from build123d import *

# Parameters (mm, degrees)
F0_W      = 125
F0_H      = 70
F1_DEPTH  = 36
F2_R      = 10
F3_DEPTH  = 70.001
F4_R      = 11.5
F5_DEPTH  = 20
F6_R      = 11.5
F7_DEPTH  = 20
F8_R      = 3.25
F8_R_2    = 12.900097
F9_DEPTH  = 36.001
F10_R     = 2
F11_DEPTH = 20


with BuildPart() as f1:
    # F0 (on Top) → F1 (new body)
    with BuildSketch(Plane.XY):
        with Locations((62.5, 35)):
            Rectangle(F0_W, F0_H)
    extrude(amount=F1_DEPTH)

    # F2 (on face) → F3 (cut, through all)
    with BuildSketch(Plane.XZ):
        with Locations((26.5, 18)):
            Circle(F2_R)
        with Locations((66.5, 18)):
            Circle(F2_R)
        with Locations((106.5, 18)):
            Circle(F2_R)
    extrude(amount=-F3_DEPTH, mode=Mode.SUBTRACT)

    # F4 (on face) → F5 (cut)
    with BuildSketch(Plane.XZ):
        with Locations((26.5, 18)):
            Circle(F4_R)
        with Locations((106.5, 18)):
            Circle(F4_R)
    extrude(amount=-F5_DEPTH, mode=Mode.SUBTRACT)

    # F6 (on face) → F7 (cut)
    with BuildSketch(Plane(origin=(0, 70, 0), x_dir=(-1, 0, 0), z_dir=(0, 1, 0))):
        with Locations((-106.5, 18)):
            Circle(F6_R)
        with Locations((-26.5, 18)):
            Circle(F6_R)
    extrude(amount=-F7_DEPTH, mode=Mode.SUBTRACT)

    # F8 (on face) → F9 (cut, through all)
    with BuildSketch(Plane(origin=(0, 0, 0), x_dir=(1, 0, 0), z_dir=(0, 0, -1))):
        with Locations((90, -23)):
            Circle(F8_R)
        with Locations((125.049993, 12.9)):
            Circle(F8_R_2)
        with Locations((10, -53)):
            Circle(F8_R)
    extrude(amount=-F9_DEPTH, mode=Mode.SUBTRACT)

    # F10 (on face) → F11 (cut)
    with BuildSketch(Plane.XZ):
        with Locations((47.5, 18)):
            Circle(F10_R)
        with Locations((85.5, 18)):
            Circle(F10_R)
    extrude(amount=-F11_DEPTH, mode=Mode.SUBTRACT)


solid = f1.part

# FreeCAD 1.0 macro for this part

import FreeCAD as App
import Part
import Sketcher
Q = App.Units.Quantity

doc = App.newDocument("Part")
body = doc.addObject("PartDesign::Body", "Body")

sketch1 = body.newObject("Sketcher::SketchObject", "Sketch")
sketch1.AttachmentSupport = (doc.getObject("XY_Plane"), [""])
sketch1.MapMode = "FlatFace"
sketch1.addGeometry([
    Part.LineSegment(App.Vector(0, 70, 0), App.Vector(0, 0, 0)),
    Part.LineSegment(App.Vector(0, 0, 0), App.Vector(125, 0, 0)),
    Part.LineSegment(App.Vector(125, 0, 0), App.Vector(125, 70, 0)),
    Part.LineSegment(App.Vector(125, 70, 0), App.Vector(0, 70, 0)),
], False)
sketch1.addConstraint([
    Sketcher.Constraint("Coincident", 0, 2, 1, 1),
    Sketcher.Constraint("Coincident", 1, 2, 2, 1),
    Sketcher.Constraint("Coincident", 2, 2, 3, 1),
    Sketcher.Constraint("Coincident", 3, 2, 0, 1),
    Sketcher.Constraint("Vertical", 0),
    Sketcher.Constraint("Horizontal", 1),
    Sketcher.Constraint("Vertical", 2),
    Sketcher.Constraint("Horizontal", 3),
    Sketcher.Constraint("Coincident", 0, 2, -1, 1),
    Sketcher.Constraint("DistanceX", 1, 1, 1, 2, Q("125 mm")),
    Sketcher.Constraint("DistanceY", 0, 2, 0, 1, Q("70 mm")),
])
pad1 = body.newObject("PartDesign::Pad", "Pad")
pad1.Profile = sketch1
pad1.Length = 36

sketch2 = body.newObject("Sketcher::SketchObject", "Sketch001")
sketch2.AttachmentSupport = (doc.getObject("XZ_Plane"), [""])
sketch2.MapMode = "FlatFace"
sketch2.addGeometry([
    Part.Circle(App.Vector(26, 18, 0), App.Vector(0, 0, 1), 10),
    Part.Circle(App.Vector(66, 18, 0), App.Vector(0, 0, 1), 10),
    Part.Circle(App.Vector(106, 18, 0), App.Vector(0, 0, 1), 10),
], False)
sketch2.addConstraint([
    Sketcher.Constraint("Equal", 0, 1),
    Sketcher.Constraint("Equal", 1, 2),
    Sketcher.Constraint("Horizontal", 0, 3, 1, 3),
    Sketcher.Constraint("Horizontal", 1, 3, 2, 3),
    Sketcher.Constraint("Diameter", 0, Q("20 mm")),
    Sketcher.Constraint("DistanceY", -1, 1, 0, 3, Q("18 mm")),
    Sketcher.Constraint("DistanceX", 0, 3, 1, 3, Q("40 mm")),
    Sketcher.Constraint("DistanceX", 1, 3, 2, 3, Q("40 mm")),
    Sketcher.Constraint("DistanceX", -1, 1, 0, 3, Q("26.5 mm")),
])
pocket1 = body.newObject("PartDesign::Pocket", "Pocket")
pocket1.Profile = sketch2
pocket1.Type = "ThroughAll"

sketch3 = body.newObject("Sketcher::SketchObject", "Sketch002")
sketch3.AttachmentSupport = (doc.getObject("XZ_Plane"), [""])
sketch3.MapMode = "FlatFace"
sketch3.addGeometry([
    Part.Circle(App.Vector(26, 18, 0), App.Vector(0, 0, 1), 12),
    Part.Circle(App.Vector(106, 18, 0), App.Vector(0, 0, 1), 12),
], False)
sketch3.addConstraint([
    Sketcher.Constraint("Equal", 0, 1),
    Sketcher.Constraint("Horizontal", 0, 3, 1, 3),
    Sketcher.Constraint("Diameter", 0, Q("23 mm")),
    Sketcher.Constraint("DistanceY", -1, 1, 0, 3, Q("18 mm")),
    Sketcher.Constraint("DistanceX", 0, 3, 1, 3, Q("80 mm")),
    Sketcher.Constraint("DistanceX", -1, 1, 0, 3, Q("26.5 mm")),
])
pocket2 = body.newObject("PartDesign::Pocket", "Pocket001")
pocket2.Profile = sketch3
pocket2.Length = 20

sketch4 = body.newObject("Sketcher::SketchObject", "Sketch003")
sketch4.AttachmentSupport = (doc.getObject("XZ_Plane"), [""])
sketch4.MapMode = "FlatFace"
sketch4.AttachmentOffset = App.Placement(App.Vector(0, 0, -70), App.Rotation())
sketch4.addGeometry([
    Part.Circle(App.Vector(106, 18, 0), App.Vector(0, 0, 1), 12),
    Part.Circle(App.Vector(26, 18, 0), App.Vector(0, 0, 1), 12),
], False)
sketch4.addConstraint([
    Sketcher.Constraint("Equal", 0, 1),
    Sketcher.Constraint("Horizontal", 0, 3, 1, 3),
    Sketcher.Constraint("Diameter", 0, Q("23 mm")),
    Sketcher.Constraint("DistanceY", -1, 1, 0, 3, Q("18 mm")),
    Sketcher.Constraint("DistanceX", 1, 3, 0, 3, Q("80 mm")),
    Sketcher.Constraint("DistanceX", -1, 1, 0, 3, Q("106.5 mm")),
])
pocket3 = body.newObject("PartDesign::Pocket", "Pocket002")
pocket3.Profile = sketch4
pocket3.Length = 20
pocket3.Reversed = True

sketch5 = body.newObject("Sketcher::SketchObject", "Sketch004")
sketch5.AttachmentSupport = (doc.getObject("XY_Plane"), [""])
sketch5.MapMode = "FlatFace"
sketch5.addGeometry([
    Part.Circle(App.Vector(90, 23, 0), App.Vector(0, 0, 1), 3.2),
    Part.Circle(App.Vector(125, -12.9, 0), App.Vector(0, 0, 1), 12.9),
    Part.Circle(App.Vector(10, 53, 0), App.Vector(0, 0, 1), 3.2),
], False)
sketch5.addConstraint([
    Sketcher.Constraint("Equal", 0, 2),
    Sketcher.Constraint("Diameter", 0, Q("6.5 mm")),
    Sketcher.Constraint("DistanceX", -1, 1, 0, 3, Q("90 mm")),
    Sketcher.Constraint("DistanceY", -1, 1, 0, 3, Q("23 mm")),
    Sketcher.Constraint("DistanceX", -1, 1, 2, 3, Q("10 mm")),
    Sketcher.Constraint("DistanceY", -1, 1, 2, 3, Q("53 mm")),
    Sketcher.Constraint("DistanceY", 1, 3, -1, 1, Q("12.9 mm")),
    Sketcher.Constraint("Diameter", 1, Q("25.800194 mm")),
    Sketcher.Constraint("DistanceX", -1, 1, 1, 3, Q("125.049993 mm")),
])
pocket4 = body.newObject("PartDesign::Pocket", "Pocket003")
pocket4.Profile = sketch5
pocket4.Type = "ThroughAll"
pocket4.Reversed = True

sketch6 = body.newObject("Sketcher::SketchObject", "Sketch005")
sketch6.AttachmentSupport = (doc.getObject("XZ_Plane"), [""])
sketch6.MapMode = "FlatFace"
sketch6.addGeometry([
    Part.Circle(App.Vector(47.5, 18, 0), App.Vector(0, 0, 1), 2),
    Part.Circle(App.Vector(85.5, 18, 0), App.Vector(0, 0, 1), 2),
], False)
sketch6.addConstraint([
    Sketcher.Constraint("Equal", 0, 1),
    Sketcher.Constraint("Horizontal", 0, 3, 1, 3),
    Sketcher.Constraint("Diameter", 0, Q("4 mm")),
    Sketcher.Constraint("DistanceY", -1, 1, 0, 3, Q("18 mm")),
    Sketcher.Constraint("DistanceX", 0, 3, 1, 3, Q("38 mm")),
    Sketcher.Constraint("DistanceX", -1, 1, 0, 3, Q("47.5 mm")),
])
pocket5 = body.newObject("PartDesign::Pocket", "Pocket004")
pocket5.Profile = sketch6
pocket5.Length = 20

doc.recompute()
